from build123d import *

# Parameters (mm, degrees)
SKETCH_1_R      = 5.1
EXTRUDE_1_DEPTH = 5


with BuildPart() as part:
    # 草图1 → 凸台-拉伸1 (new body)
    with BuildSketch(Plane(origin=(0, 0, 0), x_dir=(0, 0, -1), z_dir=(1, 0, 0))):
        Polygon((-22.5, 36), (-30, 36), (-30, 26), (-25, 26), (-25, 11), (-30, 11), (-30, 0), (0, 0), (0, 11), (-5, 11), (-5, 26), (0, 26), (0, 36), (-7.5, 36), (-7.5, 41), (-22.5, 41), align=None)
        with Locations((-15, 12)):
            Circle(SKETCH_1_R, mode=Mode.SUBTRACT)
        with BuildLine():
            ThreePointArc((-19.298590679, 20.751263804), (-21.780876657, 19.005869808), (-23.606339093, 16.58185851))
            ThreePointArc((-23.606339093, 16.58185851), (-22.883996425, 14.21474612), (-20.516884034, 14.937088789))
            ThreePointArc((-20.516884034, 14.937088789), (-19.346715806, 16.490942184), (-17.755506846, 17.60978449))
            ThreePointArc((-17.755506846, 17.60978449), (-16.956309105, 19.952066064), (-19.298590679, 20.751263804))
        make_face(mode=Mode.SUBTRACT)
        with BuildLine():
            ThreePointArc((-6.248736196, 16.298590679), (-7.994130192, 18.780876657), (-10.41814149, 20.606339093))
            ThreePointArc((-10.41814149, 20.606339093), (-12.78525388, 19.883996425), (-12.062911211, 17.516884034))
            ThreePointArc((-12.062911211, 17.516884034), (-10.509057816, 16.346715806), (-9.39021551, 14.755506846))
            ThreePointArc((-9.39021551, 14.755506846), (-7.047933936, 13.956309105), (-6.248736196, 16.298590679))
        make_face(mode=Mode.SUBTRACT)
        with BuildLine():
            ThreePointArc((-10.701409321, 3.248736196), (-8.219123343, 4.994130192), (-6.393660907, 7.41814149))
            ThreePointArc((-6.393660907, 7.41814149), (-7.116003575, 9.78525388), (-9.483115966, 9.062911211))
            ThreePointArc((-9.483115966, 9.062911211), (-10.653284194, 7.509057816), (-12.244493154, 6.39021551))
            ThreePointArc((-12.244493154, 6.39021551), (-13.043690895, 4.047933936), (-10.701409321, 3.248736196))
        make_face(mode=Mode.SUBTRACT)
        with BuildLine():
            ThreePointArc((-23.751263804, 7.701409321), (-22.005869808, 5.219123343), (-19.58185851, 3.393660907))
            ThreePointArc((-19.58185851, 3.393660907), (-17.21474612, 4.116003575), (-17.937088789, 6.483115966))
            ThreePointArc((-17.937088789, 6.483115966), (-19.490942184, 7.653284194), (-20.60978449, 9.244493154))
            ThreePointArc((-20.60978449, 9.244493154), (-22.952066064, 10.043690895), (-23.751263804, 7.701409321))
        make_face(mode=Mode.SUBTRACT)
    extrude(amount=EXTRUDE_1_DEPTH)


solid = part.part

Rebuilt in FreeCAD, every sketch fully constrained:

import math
import FreeCAD as App
import Part
import Sketcher

doc = App.newDocument("Part")
body = doc.addObject("PartDesign::Body", "Body")

# Sketch on YZ plane
sketch1 = body.newObject("Sketcher::SketchObject", "Sketch")
sketch1.AttachmentSupport = (doc.getObject("YZ_Plane"), [""])
sketch1.MapMode = "FlatFace"
sketch1.addGeometry([
    Part.LineSegment(App.Vector(36, 22.5, 0), App.Vector(36, 30, 0)),  # 0
    Part.LineSegment(App.Vector(36, 30, 0), App.Vector(26, 30, 0)),  # 1
    Part.LineSegment(App.Vector(26, 30, 0), App.Vector(26, 25, 0)),  # 2
    Part.LineSegment(App.Vector(26, 25, 0), App.Vector(11, 25, 0)),  # 3
    Part.LineSegment(App.Vector(11, 25, 0), App.Vector(11, 30, 0)),  # 4
    Part.LineSegment(App.Vector(11, 30, 0), App.Vector(0, 30, 0)),  # 5
    Part.LineSegment(App.Vector(0, 30, 0), App.Vector(0, 0, 0)),  # 6
    Part.LineSegment(App.Vector(0, 0, 0), App.Vector(11, 0, 0)),  # 7
    Part.LineSegment(App.Vector(11, 0, 0), App.Vector(11, 5, 0)),  # 8
    Part.LineSegment(App.Vector(11, 5, 0), App.Vector(26, 5, 0)),  # 9
    Part.LineSegment(App.Vector(26, 5, 0), App.Vector(26, 0, 0)),  # 10
    Part.LineSegment(App.Vector(26, 0, 0), App.Vector(36, 0, 0)),  # 11
    Part.LineSegment(App.Vector(36, 0, 0), App.Vector(36, 7.5, 0)),  # 12
    Part.LineSegment(App.Vector(36, 7.5, 0), App.Vector(41, 7.5, 0)),  # 13
    Part.LineSegment(App.Vector(41, 7.5, 0), App.Vector(41, 22.5, 0)),  # 14
    Part.LineSegment(App.Vector(41, 22.5, 0), App.Vector(36, 22.5, 0)),  # 15
    Part.ArcOfCircle(Part.Circle(App.Vector(12, 15, 0), App.Vector(0, 0, 1), 9.7), math.radians(116), math.radians(152)),  # 16
    Part.ArcOfCircle(Part.Circle(App.Vector(8.5, 22.2, 0), App.Vector(0, 0, 1), 1.8), math.radians(-64), math.radians(116)),  # 17
    Part.ArcOfCircle(Part.Circle(App.Vector(12, 15, 0), App.Vector(0, 0, 1), 6.3), math.radians(116), math.radians(152)),  # 18
    Part.ArcOfCircle(Part.Circle(App.Vector(4.9, 18.8, 0), App.Vector(0, 0, 1), 1.8), math.radians(152), math.radians(332)),  # 19
    Part.ArcOfCircle(Part.Circle(App.Vector(12, 15, 0), App.Vector(0, 0, 1), 9.7), math.radians(-154), math.radians(-118)),  # 20
    Part.ArcOfCircle(Part.Circle(App.Vector(4.8, 11.5, 0), App.Vector(0, 0, 1), 1.8), math.radians(26), math.radians(206)),  # 21
    Part.ArcOfCircle(Part.Circle(App.Vector(12, 15, 0), App.Vector(0, 0, 1), 6.3), math.radians(-154), math.radians(-118)),  # 22
    Part.ArcOfCircle(Part.Circle(App.Vector(8.2, 7.9, 0), App.Vector(0, 0, 1), 1.8), math.radians(-118), math.radians(62)),  # 23
    Part.Circle(App.Vector(12, 15, 0), App.Vector(0, 0, 1), 5.1),  # 24
    Part.ArcOfCircle(Part.Circle(App.Vector(12, 15, 0), App.Vector(0, 0, 1), 9.7), math.radians(26), math.radians(62)),  # 25
    Part.ArcOfCircle(Part.Circle(App.Vector(19.2, 18.5, 0), App.Vector(0, 0, 1), 1.8), math.radians(-154), math.radians(26)),  # 26
    Part.ArcOfCircle(Part.Circle(App.Vector(12, 15, 0), App.Vector(0, 0, 1), 6.3), math.radians(26), math.radians(62)),  # 27
    Part.ArcOfCircle(Part.Circle(App.Vector(15.8, 22.1, 0), App.Vector(0, 0, 1), 1.8), math.radians(62), math.radians(242)),  # 28
    Part.ArcOfCircle(Part.Circle(App.Vector(12, 15, 0), App.Vector(0, 0, 1), 9.7), math.radians(-64), math.radians(-28)),  # 29
    Part.ArcOfCircle(Part.Circle(App.Vector(15.5, 7.8, 0), App.Vector(0, 0, 1), 1.8), math.radians(116), math.radians(296)),  # 30
    Part.ArcOfCircle(Part.Circle(App.Vector(12, 15, 0), App.Vector(0, 0, 1), 6.3), math.radians(-64), math.radians(-28)),  # 31
    Part.ArcOfCircle(Part.Circle(App.Vector(19.1, 11.2, 0), App.Vector(0, 0, 1), 1.8), math.radians(-28), math.radians(152)),  # 32
], False)
sketch1.addConstraint([
    Sketcher.Constraint("Coincident", 0, 2, 1, 1),
    Sketcher.Constraint("Coincident", 1, 2, 2, 1),
    Sketcher.Constraint("Coincident", 2, 2, 3, 1),
    Sketcher.Constraint("Coincident", 3, 2, 4, 1),
    Sketcher.Constraint("Coincident", 4, 2, 5, 1),
    Sketcher.Constraint("Coincident", 5, 2, 6, 1),
    Sketcher.Constraint("Coincident", 6, 2, 7, 1),
    Sketcher.Constraint("Coincident", 7, 2, 8, 1),
    Sketcher.Constraint("Coincident", 8, 2, 9, 1),
    Sketcher.Constraint("Coincident", 9, 2, 10, 1),
    Sketcher.Constraint("Coincident", 10, 2, 11, 1),
    Sketcher.Constraint("Coincident", 11, 2, 12, 1),
    Sketcher.Constraint("Coincident", 12, 2, 13, 1),
    Sketcher.Constraint("Coincident", 13, 2, 14, 1),
    Sketcher.Constraint("Coincident", 14, 2, 15, 1),
    Sketcher.Constraint("Coincident", 15, 2, 0, 1),
    Sketcher.Constraint("Tangent", 16, 1, 17, 2),
    Sketcher.Constraint("Tangent", 17, 1, 18, 1),
    Sketcher.Constraint("Tangent", 18, 2, 19, 2),
    Sketcher.Constraint("Tangent", 19, 1, 16, 2),
    Sketcher.Constraint("Tangent", 20, 1, 21, 2),
    Sketcher.Constraint("Tangent", 21, 1, 22, 1),
    Sketcher.Constraint("Tangent", 22, 2, 23, 2),
    Sketcher.Constraint("Tangent", 23, 1, 20, 2),
    Sketcher.Constraint("Tangent", 25, 1, 26, 2),
    Sketcher.Constraint("Tangent", 26, 1, 27, 1),
    Sketcher.Constraint("Tangent", 27, 2, 28, 2),
    Sketcher.Constraint("Tangent", 28, 1, 25, 2),
    Sketcher.Constraint("Tangent", 29, 1, 30, 2),
    Sketcher.Constraint("Tangent", 30, 1, 31, 1),
    Sketcher.Constraint("Tangent", 31, 2, 32, 2),
    Sketcher.Constraint("Tangent", 32, 1, 29, 2),
    Sketcher.Constraint("Vertical", 0),
    Sketcher.Constraint("Horizontal", 1),
    Sketcher.Constraint("Vertical", 2),
    Sketcher.Constraint("Horizontal", 3),
    Sketcher.Constraint("Vertical", 4),
    Sketcher.Constraint("Horizontal", 5),
    Sketcher.Constraint("Vertical", 6),
    Sketcher.Constraint("Horizontal", 7),
    Sketcher.Constraint("Vertical", 8),
    Sketcher.Constraint("Horizontal", 9),
    Sketcher.Constraint("Vertical", 10),
    Sketcher.Constraint("Horizontal", 11),
    Sketcher.Constraint("Vertical", 12),
    Sketcher.Constraint("Horizontal", 13),
    Sketcher.Constraint("Vertical", 14),
    Sketcher.Constraint("Horizontal", 15),
    Sketcher.Constraint("Coincident", 6, 2, -1, 1),
    Sketcher.Constraint("Coincident", 18, 3, 16, 3),
    Sketcher.Constraint("Coincident", 20, 3, 16, 3),
    Sketcher.Constraint("Coincident", 22, 3, 16, 3),
    Sketcher.Constraint("Coincident", 24, 3, 16, 3),
    Sketcher.Constraint("Coincident", 25, 3, 16, 3),
    Sketcher.Constraint("Coincident", 27, 3, 16, 3),
    Sketcher.Constraint("Coincident", 29, 3, 16, 3),
    Sketcher.Constraint("Coincident", 31, 3, 16, 3),
    Sketcher.Constraint("Equal", 16, 20),
    Sketcher.Constraint("Equal", 19, 21),
    Sketcher.Constraint("Equal", 20, 25),
    Sketcher.Constraint("Equal", 23, 26),
    Sketcher.Constraint("Equal", 25, 29),
    Sketcher.Constraint("Equal", 28, 30),
    Sketcher.Constraint("PointOnObject", 10, 2, -1),
    Sketcher.Constraint("Horizontal", 1, 2, 4, 2),
    Sketcher.Constraint("Vertical", 4, 2, 7, 2),
    Sketcher.Constraint("Vertical", 2, 2, 9, 2),
    Sketcher.Constraint("Vertical", 0, 2, 11, 2),
    Sketcher.Constraint("Equal", 15, 2),
    Sketcher.Constraint("Equal", 4, 8),
    Sketcher.Constraint("Equal", 0, 12),
    Sketcher.Constraint("Equal", 9, 14),
    Sketcher.Constraint("Diameter", 24, 10.2),
    Sketcher.Constraint("DistanceX", 1, 2, 1, 1, 10.0),
    Sketcher.Constraint("DistanceX", 3, 2, 3, 1, 15.0),
    Sketcher.Constraint("DistanceX", 5, 2, 5, 1, 11.0),
    Sketcher.Constraint("DistanceX", 13, 1, 13, 2, 5.0),
    Sketcher.Constraint("DistanceY", 6, 2, 6, 1, 30.0),
    Sketcher.Constraint("Radius", 16, 9.75),
    Sketcher.Constraint("Radius", 17, 1.75),
    Sketcher.Constraint("DistanceX", -1, 1, 16, 3, 12.0),
    Sketcher.Constraint("DistanceY", -1, 1, 16, 3, 15.0),
    Sketcher.Constraint("DistanceX", 21, 1, 18, 2, 0.0929),
    Sketcher.Constraint("DistanceY", 27, 2, 17, 1, 0.0929),
    Sketcher.Constraint("DistanceY", 30, 1, 22, 2, 0.0929),
    Sketcher.Constraint("DistanceX", 31, 2, 26, 1, 0.0929),
    Sketcher.Constraint("DistanceX", -1, 1, 17, 3, 8.472951),
    Sketcher.Constraint("DistanceX", -1, 1, 19, 3, 4.938388),
    Sketcher.Constraint("DistanceY", -1, 1, 23, 3, 7.938388),
    Sketcher.Constraint("DistanceY", -1, 1, 26, 3, 18.527049),
])
pad1 = body.newObject("PartDesign::Pad", "Pad")
pad1.Profile = sketch1
pad1.Length = 5

doc.recompute()
